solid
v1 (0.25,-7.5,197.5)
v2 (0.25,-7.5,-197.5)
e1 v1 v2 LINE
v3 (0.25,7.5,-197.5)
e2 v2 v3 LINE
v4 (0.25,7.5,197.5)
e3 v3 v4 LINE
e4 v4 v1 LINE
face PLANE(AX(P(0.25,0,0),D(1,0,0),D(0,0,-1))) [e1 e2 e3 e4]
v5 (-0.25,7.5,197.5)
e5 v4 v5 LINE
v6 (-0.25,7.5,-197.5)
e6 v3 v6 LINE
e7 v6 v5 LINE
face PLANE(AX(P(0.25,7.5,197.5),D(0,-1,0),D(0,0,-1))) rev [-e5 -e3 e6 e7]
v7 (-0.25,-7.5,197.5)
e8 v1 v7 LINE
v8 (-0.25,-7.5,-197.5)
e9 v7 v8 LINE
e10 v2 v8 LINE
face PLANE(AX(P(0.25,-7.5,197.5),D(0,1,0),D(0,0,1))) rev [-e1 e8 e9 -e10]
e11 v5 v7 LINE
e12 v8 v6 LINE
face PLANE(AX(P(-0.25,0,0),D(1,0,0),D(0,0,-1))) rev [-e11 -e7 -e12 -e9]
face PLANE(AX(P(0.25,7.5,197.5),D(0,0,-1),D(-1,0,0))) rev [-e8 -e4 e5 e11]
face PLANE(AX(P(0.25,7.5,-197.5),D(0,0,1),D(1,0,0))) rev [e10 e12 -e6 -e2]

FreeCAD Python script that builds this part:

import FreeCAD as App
import Part
import Sketcher

doc = App.newDocument("Part")
body = doc.addObject("PartDesign::Body", "Body")

sketch1 = body.newObject("Sketcher::SketchObject", "Sketch")
sketch1.AttachmentSupport = (doc.getObject("YZ_Plane"), [""])
sketch1.MapMode = "FlatFace"
sketch1.addGeometry(Part.LineSegment(App.Vector(8, 198, 0), App.Vector(-8, 198, 0)), False)
sketch1.addGeometry(Part.LineSegment(App.Vector(-8, 198, 0), App.Vector(-8, -198, 0)), False)
sketch1.addGeometry(Part.LineSegment(App.Vector(-8, -198, 0), App.Vector(8, -198, 0)), False)
sketch1.addGeometry(Part.LineSegment(App.Vector(8, -198, 0), App.Vector(8, 198, 0)), False)
sketch1.addConstraint(Sketcher.Constraint("Coincident", 0, 2, 1, 1))
sketch1.addConstraint(Sketcher.Constraint("Coincident", 1, 2, 2, 1))
sketch1.addConstraint(Sketcher.Constraint("Coincident", 2, 2, 3, 1))
sketch1.addConstraint(Sketcher.Constraint("Coincident", 3, 2, 0, 1))
sketch1.addConstraint(Sketcher.Constraint("Horizontal", 0))
sketch1.addConstraint(Sketcher.Constraint("Vertical", 1))
sketch1.addConstraint(Sketcher.Constraint("Horizontal", 2))
sketch1.addConstraint(Sketcher.Constraint("Vertical", 3))
sketch1.addConstraint(Sketcher.Constraint("Symmetric", 0, 2, 2, 2, -1, 1))
sketch1.addConstraint(Sketcher.Constraint("DistanceX", 0, 2, 0, 1, 15.0))
sketch1.addConstraint(Sketcher.Constraint("DistanceY", 1, 2, 1, 1, 395.0))
pad1 = body.newObject("PartDesign::Pad", "Pad")
pad1.Profile = sketch1
pad1.Length = 0.5
pad1.Midplane = True

doc.recompute()
